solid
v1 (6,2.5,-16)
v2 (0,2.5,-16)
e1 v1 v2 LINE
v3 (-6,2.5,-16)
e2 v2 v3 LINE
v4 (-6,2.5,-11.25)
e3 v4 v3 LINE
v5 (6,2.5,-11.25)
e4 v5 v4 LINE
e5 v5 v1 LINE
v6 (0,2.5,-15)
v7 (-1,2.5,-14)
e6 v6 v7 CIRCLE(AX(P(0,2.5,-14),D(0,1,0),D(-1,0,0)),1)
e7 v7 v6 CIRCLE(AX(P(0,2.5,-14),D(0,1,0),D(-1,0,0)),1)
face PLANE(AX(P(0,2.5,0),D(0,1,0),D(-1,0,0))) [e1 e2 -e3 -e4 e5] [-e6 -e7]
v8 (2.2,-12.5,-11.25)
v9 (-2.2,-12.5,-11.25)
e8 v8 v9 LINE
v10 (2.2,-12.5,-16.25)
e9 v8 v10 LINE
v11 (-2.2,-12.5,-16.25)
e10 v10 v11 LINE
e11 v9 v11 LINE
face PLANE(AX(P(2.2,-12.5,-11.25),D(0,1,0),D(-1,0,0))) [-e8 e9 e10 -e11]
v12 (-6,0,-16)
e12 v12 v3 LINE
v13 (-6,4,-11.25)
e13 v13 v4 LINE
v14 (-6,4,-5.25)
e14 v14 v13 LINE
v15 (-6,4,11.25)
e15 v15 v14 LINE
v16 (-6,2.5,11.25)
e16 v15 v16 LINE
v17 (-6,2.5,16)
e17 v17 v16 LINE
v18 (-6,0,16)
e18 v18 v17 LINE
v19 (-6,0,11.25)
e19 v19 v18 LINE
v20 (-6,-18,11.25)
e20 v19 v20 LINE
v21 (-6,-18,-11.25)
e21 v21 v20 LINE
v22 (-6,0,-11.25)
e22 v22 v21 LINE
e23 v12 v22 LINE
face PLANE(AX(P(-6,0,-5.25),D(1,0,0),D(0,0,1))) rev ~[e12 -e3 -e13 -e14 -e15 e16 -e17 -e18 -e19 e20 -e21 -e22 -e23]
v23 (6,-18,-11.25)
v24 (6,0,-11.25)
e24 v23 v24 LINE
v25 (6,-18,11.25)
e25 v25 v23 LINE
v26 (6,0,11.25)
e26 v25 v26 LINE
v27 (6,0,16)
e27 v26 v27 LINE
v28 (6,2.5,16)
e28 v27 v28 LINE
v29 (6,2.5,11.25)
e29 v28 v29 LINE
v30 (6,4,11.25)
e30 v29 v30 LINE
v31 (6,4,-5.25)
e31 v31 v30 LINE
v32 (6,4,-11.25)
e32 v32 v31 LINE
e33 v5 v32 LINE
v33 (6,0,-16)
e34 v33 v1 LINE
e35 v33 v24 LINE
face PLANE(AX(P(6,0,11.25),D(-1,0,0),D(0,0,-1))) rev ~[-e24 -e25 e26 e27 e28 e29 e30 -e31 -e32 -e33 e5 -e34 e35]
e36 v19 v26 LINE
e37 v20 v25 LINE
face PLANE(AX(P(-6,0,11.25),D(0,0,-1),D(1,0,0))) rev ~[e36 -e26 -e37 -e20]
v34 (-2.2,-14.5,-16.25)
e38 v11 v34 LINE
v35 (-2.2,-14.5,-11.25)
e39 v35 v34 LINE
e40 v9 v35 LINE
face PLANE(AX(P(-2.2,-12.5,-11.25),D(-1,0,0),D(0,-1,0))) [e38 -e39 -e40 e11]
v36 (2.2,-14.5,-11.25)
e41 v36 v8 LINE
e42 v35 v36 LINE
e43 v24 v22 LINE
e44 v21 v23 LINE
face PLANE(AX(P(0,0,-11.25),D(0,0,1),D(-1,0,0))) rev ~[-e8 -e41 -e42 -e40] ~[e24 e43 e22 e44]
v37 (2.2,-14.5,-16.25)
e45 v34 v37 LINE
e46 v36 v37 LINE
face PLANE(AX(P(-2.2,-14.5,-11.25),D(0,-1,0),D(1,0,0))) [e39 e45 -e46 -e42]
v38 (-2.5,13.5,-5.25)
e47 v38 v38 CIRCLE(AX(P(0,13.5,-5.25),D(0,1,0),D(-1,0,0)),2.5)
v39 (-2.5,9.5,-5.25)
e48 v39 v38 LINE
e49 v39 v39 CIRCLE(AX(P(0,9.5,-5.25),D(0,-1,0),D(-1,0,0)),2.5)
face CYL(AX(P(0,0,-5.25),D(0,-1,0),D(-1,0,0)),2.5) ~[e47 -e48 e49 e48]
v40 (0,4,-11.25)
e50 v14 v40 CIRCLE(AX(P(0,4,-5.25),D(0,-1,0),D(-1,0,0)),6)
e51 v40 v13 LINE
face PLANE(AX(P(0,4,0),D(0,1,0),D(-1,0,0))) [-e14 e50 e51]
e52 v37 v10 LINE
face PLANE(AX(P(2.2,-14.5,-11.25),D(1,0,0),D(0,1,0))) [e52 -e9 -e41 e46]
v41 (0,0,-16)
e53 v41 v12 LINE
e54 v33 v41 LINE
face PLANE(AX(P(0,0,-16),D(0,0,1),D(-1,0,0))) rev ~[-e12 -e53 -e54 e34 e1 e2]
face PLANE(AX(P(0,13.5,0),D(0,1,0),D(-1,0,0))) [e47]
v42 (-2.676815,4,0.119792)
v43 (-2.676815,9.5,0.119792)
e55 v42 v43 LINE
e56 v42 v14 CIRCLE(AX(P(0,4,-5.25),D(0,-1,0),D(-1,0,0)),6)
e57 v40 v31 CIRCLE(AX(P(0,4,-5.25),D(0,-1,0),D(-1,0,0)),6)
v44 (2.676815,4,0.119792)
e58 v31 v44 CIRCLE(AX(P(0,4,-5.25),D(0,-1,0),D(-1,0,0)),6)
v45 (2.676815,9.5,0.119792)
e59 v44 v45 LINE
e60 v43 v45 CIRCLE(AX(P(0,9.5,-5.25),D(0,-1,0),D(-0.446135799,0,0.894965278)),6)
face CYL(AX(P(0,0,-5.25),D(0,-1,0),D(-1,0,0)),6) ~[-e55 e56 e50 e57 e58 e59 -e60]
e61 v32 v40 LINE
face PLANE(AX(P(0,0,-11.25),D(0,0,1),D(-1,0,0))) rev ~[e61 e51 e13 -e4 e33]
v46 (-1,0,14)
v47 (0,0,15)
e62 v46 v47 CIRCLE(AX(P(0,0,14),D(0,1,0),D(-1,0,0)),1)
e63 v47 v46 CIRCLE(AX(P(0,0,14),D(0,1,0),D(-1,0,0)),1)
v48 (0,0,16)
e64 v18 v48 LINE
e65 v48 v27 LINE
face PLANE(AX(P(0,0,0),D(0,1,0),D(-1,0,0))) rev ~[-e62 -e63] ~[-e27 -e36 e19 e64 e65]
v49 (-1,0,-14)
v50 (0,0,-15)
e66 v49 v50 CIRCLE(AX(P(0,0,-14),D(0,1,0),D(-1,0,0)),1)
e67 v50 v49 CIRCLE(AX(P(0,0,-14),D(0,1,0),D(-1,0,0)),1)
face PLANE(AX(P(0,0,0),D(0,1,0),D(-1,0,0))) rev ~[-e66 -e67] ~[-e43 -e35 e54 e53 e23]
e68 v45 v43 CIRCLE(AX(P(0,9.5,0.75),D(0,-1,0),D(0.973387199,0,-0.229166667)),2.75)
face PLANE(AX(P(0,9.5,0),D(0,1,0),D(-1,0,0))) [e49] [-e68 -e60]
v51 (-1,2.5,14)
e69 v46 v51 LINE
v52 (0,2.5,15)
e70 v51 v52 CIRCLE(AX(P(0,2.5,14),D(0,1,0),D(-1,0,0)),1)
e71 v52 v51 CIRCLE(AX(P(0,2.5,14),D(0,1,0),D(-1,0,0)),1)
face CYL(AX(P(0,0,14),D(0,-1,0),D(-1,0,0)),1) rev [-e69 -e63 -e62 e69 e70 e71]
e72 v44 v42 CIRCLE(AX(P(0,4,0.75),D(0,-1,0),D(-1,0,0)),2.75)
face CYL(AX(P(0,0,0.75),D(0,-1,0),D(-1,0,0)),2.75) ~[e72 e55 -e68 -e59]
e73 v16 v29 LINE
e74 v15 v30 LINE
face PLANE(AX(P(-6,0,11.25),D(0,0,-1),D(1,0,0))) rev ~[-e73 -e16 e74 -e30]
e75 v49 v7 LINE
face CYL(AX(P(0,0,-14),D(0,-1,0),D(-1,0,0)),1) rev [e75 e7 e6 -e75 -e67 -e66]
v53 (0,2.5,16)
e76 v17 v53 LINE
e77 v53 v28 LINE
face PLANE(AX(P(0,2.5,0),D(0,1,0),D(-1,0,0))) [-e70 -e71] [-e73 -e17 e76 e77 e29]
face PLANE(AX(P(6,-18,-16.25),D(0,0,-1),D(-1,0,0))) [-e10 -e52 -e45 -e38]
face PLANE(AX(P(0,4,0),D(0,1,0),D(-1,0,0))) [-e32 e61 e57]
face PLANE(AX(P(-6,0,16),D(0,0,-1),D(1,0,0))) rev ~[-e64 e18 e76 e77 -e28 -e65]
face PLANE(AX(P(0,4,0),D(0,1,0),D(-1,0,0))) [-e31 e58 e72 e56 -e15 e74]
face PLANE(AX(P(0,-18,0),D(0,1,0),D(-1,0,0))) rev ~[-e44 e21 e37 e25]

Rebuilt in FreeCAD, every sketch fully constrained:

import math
import FreeCAD as App
import Part
import Sketcher
from FreeCAD import Vector

doc = App.newDocument("Part")
body = doc.addObject("PartDesign::Body", "Body")

# Sketch on XZ plane
sketch1 = body.newObject("Sketcher::SketchObject", "Sketch")
sketch1.AttachmentSupport = (doc.getObject("XZ_Plane"), [""])
sketch1.MapMode = "FlatFace"
sketch1.addGeometry([
    Part.LineSegment(Vector(-6, 11, 0), Vector(6, 11, 0)),
    Part.LineSegment(Vector(6, 11, 0), Vector(6, -11, 0)),
    Part.LineSegment(Vector(6, -11, 0), Vector(-6, -11, 0)),
    Part.LineSegment(Vector(-6, -11, 0), Vector(-6, 11, 0)),
], False)
sketch1.addConstraint([
    Sketcher.Constraint("Coincident", 0, 2, 1, 1),
    Sketcher.Constraint("Coincident", 1, 2, 2, 1),
    Sketcher.Constraint("Coincident", 2, 2, 3, 1),
    Sketcher.Constraint("Coincident", 3, 2, 0, 1),
    Sketcher.Constraint("Horizontal", 0),
    Sketcher.Constraint("Vertical", 1),
    Sketcher.Constraint("Horizontal", 2),
    Sketcher.Constraint("Vertical", 3),
    Sketcher.Constraint("Symmetric", 0, 2, 2, 2, -1, 1),
    Sketcher.Constraint("DistanceX", 0, 1, 0, 2, 12.0),
    Sketcher.Constraint("DistanceY", 1, 2, 1, 1, 22.5),
])
pad1 = body.newObject("PartDesign::Pad", "Pad")
pad1.Profile = sketch1
pad1.Type = "TwoLengths"
pad1.Length = 4
pad1.Length2 = 18
pad1.Reversed = True

# Sketch on XZ plane
sketch2 = body.newObject("Sketcher::SketchObject", "Sketch001")
sketch2.AttachmentSupport = (doc.getObject("XZ_Plane"), [""])
sketch2.MapMode = "FlatFace"
sketch2.addGeometry([
    Part.LineSegment(Vector(-6, 16, 0), Vector(0, 16, 0)),  # 0
    Part.LineSegment(Vector(0, 16, 0), Vector(6, 16, 0)),  # 1
    Part.LineSegment(Vector(6, 16, 0), Vector(6, -16, 0)),  # 2
    Part.LineSegment(Vector(6, -16, 0), Vector(0, -16, 0)),  # 3
    Part.LineSegment(Vector(0, -16, 0), Vector(-6, -16, 0)),  # 4
    Part.LineSegment(Vector(-6, -16, 0), Vector(-6, 16, 0)),  # 5
    Part.Circle(Vector(0, 14, 0), Vector(0, 0, 1), 1),  # 6
    Part.Circle(Vector(0, -14, 0), Vector(0, 0, 1), 1),  # 7
], False)
sketch2.addConstraint([
    Sketcher.Constraint("Coincident", 0, 2, 1, 1),
    Sketcher.Constraint("Coincident", 1, 2, 2, 1),
    Sketcher.Constraint("Coincident", 2, 2, 3, 1),
    Sketcher.Constraint("Coincident", 3, 2, 4, 1),
    Sketcher.Constraint("Coincident", 4, 2, 5, 1),
    Sketcher.Constraint("Coincident", 5, 2, 0, 1),
    Sketcher.Constraint("Horizontal", 0),
    Sketcher.Constraint("Horizontal", 1),
    Sketcher.Constraint("Vertical", 2),
    Sketcher.Constraint("Horizontal", 3),
    Sketcher.Constraint("Horizontal", 4),
    Sketcher.Constraint("Vertical", 5),
    Sketcher.Constraint("Equal", 6, 7),
    Sketcher.Constraint("Symmetric", 6, 3, 7, 3, -1, 1),
    Sketcher.Constraint("Symmetric", 0, 2, 3, 2, -1, 1),
    Sketcher.Constraint("PointOnObject", 6, 3, -2),
    Sketcher.Constraint("PointOnObject", 0, 2, -2),
    Sketcher.Constraint("Equal", 0, 1),
    Sketcher.Constraint("Diameter", 6, 2.0),
    Sketcher.Constraint("DistanceX", 0, 1, 0, 2, 6.0),
    Sketcher.Constraint("DistanceY", 2, 2, 2, 1, 32.0),
    Sketcher.Constraint("DistanceY", 6, 3, 0, 2, 2.0),
])
pad2 = body.newObject("PartDesign::Pad", "Pad001")
pad2.Profile = sketch2
pad2.Length = 2.5
pad2.Reversed = True

# Sketch on XZ plane
sketch3 = body.newObject("Sketcher::SketchObject", "Sketch002")
sketch3.AttachmentSupport = (doc.getObject("XZ_Plane"), [""])
sketch3.MapMode = "FlatFace"
sketch3.addGeometry([
    Part.ArcOfCircle(Part.Circle(Vector(0, -5.2, 0), Vector(0, 0, 1), 6), math.radians(116), math.radians(424)),
    Part.ArcOfCircle(Part.Circle(Vector(0, 0.8, 0), Vector(0, 0, 1), 2.8), math.radians(-13), math.radians(193)),
], False)
sketch3.addConstraint([
    Sketcher.Constraint("Coincident", 0, 1, 1, 2),
    Sketcher.Constraint("Coincident", 1, 1, 0, 2),
    Sketcher.Constraint("Symmetric", 0, 1, 1, 1, -2),
    Sketcher.Constraint("Radius", 0, 6.0),
    Sketcher.Constraint("Radius", 1, 2.75),
    Sketcher.Constraint("DistanceY", 0, 3, 1, 3, 6.0),
    Sketcher.Constraint("DistanceY", 0, 3, -1, 1, 5.25),
])
pad3 = body.newObject("PartDesign::Pad", "Pad002")
pad3.Profile = sketch3
pad3.Length = 9.5
pad3.Reversed = True

# Sketch on XZ plane
sketch4 = body.newObject("Sketcher::SketchObject", "Sketch003")
sketch4.AttachmentSupport = (doc.getObject("XZ_Plane"), [""])
sketch4.MapMode = "FlatFace"
sketch4.addGeometry(Part.Circle(Vector(0, -5.2, 0), Vector(0, 0, 1), 2.5), False)
sketch4.addConstraint([
    Sketcher.Constraint("PointOnObject", 0, 3, -2),
    Sketcher.Constraint("Diameter", 0, 5.0),
    Sketcher.Constraint("DistanceY", 0, 3, -1, 1, 5.25),
])
pad4 = body.newObject("PartDesign::Pad", "Pad003")
pad4.Profile = sketch4
pad4.Length = 13.5
pad4.Reversed = True

# Sketch on XY plane
sketch5 = body.newObject("Sketcher::SketchObject", "Sketch004")
sketch5.AttachmentSupport = (doc.getObject("XY_Plane"), [""])
sketch5.MapMode = "FlatFace"
sketch5.AttachmentOffset = App.Placement(Vector(0, 0, -11.25), App.Rotation())
sketch5.addGeometry([
    Part.LineSegment(Vector(2.2, -12.5, 0), Vector(2.2, -14.5, 0)),
    Part.LineSegment(Vector(2.2, -14.5, 0), Vector(-2.2, -14.5, 0)),
    Part.LineSegment(Vector(-2.2, -14.5, 0), Vector(-2.2, -12.5, 0)),
    Part.LineSegment(Vector(-2.2, -12.5, 0), Vector(2.2, -12.5, 0)),
], False)
sketch5.addConstraint([
    Sketcher.Constraint("Coincident", 0, 2, 1, 1),
    Sketcher.Constraint("Coincident", 1, 2, 2, 1),
    Sketcher.Constraint("Coincident", 2, 2, 3, 1),
    Sketcher.Constraint("Coincident", 3, 2, 0, 1),
    Sketcher.Constraint("Vertical", 0),
    Sketcher.Constraint("Horizontal", 1),
    Sketcher.Constraint("Vertical", 2),
    Sketcher.Constraint("Horizontal", 3),
    Sketcher.Constraint("DistanceY", 0, 2, 0, 1, 2.0),
    Sketcher.Constraint("DistanceX", 1, 2, 1, 1, 4.4),
    Sketcher.Constraint("DistanceX", -1, 1, 0, 2, 2.2),
    Sketcher.Constraint("DistanceY", 0, 2, -1, 1, 14.5),
])
pad5 = body.newObject("PartDesign::Pad", "Pad004")
pad5.Profile = sketch5
pad5.Length = 5
pad5.Reversed = True

doc.recompute()
